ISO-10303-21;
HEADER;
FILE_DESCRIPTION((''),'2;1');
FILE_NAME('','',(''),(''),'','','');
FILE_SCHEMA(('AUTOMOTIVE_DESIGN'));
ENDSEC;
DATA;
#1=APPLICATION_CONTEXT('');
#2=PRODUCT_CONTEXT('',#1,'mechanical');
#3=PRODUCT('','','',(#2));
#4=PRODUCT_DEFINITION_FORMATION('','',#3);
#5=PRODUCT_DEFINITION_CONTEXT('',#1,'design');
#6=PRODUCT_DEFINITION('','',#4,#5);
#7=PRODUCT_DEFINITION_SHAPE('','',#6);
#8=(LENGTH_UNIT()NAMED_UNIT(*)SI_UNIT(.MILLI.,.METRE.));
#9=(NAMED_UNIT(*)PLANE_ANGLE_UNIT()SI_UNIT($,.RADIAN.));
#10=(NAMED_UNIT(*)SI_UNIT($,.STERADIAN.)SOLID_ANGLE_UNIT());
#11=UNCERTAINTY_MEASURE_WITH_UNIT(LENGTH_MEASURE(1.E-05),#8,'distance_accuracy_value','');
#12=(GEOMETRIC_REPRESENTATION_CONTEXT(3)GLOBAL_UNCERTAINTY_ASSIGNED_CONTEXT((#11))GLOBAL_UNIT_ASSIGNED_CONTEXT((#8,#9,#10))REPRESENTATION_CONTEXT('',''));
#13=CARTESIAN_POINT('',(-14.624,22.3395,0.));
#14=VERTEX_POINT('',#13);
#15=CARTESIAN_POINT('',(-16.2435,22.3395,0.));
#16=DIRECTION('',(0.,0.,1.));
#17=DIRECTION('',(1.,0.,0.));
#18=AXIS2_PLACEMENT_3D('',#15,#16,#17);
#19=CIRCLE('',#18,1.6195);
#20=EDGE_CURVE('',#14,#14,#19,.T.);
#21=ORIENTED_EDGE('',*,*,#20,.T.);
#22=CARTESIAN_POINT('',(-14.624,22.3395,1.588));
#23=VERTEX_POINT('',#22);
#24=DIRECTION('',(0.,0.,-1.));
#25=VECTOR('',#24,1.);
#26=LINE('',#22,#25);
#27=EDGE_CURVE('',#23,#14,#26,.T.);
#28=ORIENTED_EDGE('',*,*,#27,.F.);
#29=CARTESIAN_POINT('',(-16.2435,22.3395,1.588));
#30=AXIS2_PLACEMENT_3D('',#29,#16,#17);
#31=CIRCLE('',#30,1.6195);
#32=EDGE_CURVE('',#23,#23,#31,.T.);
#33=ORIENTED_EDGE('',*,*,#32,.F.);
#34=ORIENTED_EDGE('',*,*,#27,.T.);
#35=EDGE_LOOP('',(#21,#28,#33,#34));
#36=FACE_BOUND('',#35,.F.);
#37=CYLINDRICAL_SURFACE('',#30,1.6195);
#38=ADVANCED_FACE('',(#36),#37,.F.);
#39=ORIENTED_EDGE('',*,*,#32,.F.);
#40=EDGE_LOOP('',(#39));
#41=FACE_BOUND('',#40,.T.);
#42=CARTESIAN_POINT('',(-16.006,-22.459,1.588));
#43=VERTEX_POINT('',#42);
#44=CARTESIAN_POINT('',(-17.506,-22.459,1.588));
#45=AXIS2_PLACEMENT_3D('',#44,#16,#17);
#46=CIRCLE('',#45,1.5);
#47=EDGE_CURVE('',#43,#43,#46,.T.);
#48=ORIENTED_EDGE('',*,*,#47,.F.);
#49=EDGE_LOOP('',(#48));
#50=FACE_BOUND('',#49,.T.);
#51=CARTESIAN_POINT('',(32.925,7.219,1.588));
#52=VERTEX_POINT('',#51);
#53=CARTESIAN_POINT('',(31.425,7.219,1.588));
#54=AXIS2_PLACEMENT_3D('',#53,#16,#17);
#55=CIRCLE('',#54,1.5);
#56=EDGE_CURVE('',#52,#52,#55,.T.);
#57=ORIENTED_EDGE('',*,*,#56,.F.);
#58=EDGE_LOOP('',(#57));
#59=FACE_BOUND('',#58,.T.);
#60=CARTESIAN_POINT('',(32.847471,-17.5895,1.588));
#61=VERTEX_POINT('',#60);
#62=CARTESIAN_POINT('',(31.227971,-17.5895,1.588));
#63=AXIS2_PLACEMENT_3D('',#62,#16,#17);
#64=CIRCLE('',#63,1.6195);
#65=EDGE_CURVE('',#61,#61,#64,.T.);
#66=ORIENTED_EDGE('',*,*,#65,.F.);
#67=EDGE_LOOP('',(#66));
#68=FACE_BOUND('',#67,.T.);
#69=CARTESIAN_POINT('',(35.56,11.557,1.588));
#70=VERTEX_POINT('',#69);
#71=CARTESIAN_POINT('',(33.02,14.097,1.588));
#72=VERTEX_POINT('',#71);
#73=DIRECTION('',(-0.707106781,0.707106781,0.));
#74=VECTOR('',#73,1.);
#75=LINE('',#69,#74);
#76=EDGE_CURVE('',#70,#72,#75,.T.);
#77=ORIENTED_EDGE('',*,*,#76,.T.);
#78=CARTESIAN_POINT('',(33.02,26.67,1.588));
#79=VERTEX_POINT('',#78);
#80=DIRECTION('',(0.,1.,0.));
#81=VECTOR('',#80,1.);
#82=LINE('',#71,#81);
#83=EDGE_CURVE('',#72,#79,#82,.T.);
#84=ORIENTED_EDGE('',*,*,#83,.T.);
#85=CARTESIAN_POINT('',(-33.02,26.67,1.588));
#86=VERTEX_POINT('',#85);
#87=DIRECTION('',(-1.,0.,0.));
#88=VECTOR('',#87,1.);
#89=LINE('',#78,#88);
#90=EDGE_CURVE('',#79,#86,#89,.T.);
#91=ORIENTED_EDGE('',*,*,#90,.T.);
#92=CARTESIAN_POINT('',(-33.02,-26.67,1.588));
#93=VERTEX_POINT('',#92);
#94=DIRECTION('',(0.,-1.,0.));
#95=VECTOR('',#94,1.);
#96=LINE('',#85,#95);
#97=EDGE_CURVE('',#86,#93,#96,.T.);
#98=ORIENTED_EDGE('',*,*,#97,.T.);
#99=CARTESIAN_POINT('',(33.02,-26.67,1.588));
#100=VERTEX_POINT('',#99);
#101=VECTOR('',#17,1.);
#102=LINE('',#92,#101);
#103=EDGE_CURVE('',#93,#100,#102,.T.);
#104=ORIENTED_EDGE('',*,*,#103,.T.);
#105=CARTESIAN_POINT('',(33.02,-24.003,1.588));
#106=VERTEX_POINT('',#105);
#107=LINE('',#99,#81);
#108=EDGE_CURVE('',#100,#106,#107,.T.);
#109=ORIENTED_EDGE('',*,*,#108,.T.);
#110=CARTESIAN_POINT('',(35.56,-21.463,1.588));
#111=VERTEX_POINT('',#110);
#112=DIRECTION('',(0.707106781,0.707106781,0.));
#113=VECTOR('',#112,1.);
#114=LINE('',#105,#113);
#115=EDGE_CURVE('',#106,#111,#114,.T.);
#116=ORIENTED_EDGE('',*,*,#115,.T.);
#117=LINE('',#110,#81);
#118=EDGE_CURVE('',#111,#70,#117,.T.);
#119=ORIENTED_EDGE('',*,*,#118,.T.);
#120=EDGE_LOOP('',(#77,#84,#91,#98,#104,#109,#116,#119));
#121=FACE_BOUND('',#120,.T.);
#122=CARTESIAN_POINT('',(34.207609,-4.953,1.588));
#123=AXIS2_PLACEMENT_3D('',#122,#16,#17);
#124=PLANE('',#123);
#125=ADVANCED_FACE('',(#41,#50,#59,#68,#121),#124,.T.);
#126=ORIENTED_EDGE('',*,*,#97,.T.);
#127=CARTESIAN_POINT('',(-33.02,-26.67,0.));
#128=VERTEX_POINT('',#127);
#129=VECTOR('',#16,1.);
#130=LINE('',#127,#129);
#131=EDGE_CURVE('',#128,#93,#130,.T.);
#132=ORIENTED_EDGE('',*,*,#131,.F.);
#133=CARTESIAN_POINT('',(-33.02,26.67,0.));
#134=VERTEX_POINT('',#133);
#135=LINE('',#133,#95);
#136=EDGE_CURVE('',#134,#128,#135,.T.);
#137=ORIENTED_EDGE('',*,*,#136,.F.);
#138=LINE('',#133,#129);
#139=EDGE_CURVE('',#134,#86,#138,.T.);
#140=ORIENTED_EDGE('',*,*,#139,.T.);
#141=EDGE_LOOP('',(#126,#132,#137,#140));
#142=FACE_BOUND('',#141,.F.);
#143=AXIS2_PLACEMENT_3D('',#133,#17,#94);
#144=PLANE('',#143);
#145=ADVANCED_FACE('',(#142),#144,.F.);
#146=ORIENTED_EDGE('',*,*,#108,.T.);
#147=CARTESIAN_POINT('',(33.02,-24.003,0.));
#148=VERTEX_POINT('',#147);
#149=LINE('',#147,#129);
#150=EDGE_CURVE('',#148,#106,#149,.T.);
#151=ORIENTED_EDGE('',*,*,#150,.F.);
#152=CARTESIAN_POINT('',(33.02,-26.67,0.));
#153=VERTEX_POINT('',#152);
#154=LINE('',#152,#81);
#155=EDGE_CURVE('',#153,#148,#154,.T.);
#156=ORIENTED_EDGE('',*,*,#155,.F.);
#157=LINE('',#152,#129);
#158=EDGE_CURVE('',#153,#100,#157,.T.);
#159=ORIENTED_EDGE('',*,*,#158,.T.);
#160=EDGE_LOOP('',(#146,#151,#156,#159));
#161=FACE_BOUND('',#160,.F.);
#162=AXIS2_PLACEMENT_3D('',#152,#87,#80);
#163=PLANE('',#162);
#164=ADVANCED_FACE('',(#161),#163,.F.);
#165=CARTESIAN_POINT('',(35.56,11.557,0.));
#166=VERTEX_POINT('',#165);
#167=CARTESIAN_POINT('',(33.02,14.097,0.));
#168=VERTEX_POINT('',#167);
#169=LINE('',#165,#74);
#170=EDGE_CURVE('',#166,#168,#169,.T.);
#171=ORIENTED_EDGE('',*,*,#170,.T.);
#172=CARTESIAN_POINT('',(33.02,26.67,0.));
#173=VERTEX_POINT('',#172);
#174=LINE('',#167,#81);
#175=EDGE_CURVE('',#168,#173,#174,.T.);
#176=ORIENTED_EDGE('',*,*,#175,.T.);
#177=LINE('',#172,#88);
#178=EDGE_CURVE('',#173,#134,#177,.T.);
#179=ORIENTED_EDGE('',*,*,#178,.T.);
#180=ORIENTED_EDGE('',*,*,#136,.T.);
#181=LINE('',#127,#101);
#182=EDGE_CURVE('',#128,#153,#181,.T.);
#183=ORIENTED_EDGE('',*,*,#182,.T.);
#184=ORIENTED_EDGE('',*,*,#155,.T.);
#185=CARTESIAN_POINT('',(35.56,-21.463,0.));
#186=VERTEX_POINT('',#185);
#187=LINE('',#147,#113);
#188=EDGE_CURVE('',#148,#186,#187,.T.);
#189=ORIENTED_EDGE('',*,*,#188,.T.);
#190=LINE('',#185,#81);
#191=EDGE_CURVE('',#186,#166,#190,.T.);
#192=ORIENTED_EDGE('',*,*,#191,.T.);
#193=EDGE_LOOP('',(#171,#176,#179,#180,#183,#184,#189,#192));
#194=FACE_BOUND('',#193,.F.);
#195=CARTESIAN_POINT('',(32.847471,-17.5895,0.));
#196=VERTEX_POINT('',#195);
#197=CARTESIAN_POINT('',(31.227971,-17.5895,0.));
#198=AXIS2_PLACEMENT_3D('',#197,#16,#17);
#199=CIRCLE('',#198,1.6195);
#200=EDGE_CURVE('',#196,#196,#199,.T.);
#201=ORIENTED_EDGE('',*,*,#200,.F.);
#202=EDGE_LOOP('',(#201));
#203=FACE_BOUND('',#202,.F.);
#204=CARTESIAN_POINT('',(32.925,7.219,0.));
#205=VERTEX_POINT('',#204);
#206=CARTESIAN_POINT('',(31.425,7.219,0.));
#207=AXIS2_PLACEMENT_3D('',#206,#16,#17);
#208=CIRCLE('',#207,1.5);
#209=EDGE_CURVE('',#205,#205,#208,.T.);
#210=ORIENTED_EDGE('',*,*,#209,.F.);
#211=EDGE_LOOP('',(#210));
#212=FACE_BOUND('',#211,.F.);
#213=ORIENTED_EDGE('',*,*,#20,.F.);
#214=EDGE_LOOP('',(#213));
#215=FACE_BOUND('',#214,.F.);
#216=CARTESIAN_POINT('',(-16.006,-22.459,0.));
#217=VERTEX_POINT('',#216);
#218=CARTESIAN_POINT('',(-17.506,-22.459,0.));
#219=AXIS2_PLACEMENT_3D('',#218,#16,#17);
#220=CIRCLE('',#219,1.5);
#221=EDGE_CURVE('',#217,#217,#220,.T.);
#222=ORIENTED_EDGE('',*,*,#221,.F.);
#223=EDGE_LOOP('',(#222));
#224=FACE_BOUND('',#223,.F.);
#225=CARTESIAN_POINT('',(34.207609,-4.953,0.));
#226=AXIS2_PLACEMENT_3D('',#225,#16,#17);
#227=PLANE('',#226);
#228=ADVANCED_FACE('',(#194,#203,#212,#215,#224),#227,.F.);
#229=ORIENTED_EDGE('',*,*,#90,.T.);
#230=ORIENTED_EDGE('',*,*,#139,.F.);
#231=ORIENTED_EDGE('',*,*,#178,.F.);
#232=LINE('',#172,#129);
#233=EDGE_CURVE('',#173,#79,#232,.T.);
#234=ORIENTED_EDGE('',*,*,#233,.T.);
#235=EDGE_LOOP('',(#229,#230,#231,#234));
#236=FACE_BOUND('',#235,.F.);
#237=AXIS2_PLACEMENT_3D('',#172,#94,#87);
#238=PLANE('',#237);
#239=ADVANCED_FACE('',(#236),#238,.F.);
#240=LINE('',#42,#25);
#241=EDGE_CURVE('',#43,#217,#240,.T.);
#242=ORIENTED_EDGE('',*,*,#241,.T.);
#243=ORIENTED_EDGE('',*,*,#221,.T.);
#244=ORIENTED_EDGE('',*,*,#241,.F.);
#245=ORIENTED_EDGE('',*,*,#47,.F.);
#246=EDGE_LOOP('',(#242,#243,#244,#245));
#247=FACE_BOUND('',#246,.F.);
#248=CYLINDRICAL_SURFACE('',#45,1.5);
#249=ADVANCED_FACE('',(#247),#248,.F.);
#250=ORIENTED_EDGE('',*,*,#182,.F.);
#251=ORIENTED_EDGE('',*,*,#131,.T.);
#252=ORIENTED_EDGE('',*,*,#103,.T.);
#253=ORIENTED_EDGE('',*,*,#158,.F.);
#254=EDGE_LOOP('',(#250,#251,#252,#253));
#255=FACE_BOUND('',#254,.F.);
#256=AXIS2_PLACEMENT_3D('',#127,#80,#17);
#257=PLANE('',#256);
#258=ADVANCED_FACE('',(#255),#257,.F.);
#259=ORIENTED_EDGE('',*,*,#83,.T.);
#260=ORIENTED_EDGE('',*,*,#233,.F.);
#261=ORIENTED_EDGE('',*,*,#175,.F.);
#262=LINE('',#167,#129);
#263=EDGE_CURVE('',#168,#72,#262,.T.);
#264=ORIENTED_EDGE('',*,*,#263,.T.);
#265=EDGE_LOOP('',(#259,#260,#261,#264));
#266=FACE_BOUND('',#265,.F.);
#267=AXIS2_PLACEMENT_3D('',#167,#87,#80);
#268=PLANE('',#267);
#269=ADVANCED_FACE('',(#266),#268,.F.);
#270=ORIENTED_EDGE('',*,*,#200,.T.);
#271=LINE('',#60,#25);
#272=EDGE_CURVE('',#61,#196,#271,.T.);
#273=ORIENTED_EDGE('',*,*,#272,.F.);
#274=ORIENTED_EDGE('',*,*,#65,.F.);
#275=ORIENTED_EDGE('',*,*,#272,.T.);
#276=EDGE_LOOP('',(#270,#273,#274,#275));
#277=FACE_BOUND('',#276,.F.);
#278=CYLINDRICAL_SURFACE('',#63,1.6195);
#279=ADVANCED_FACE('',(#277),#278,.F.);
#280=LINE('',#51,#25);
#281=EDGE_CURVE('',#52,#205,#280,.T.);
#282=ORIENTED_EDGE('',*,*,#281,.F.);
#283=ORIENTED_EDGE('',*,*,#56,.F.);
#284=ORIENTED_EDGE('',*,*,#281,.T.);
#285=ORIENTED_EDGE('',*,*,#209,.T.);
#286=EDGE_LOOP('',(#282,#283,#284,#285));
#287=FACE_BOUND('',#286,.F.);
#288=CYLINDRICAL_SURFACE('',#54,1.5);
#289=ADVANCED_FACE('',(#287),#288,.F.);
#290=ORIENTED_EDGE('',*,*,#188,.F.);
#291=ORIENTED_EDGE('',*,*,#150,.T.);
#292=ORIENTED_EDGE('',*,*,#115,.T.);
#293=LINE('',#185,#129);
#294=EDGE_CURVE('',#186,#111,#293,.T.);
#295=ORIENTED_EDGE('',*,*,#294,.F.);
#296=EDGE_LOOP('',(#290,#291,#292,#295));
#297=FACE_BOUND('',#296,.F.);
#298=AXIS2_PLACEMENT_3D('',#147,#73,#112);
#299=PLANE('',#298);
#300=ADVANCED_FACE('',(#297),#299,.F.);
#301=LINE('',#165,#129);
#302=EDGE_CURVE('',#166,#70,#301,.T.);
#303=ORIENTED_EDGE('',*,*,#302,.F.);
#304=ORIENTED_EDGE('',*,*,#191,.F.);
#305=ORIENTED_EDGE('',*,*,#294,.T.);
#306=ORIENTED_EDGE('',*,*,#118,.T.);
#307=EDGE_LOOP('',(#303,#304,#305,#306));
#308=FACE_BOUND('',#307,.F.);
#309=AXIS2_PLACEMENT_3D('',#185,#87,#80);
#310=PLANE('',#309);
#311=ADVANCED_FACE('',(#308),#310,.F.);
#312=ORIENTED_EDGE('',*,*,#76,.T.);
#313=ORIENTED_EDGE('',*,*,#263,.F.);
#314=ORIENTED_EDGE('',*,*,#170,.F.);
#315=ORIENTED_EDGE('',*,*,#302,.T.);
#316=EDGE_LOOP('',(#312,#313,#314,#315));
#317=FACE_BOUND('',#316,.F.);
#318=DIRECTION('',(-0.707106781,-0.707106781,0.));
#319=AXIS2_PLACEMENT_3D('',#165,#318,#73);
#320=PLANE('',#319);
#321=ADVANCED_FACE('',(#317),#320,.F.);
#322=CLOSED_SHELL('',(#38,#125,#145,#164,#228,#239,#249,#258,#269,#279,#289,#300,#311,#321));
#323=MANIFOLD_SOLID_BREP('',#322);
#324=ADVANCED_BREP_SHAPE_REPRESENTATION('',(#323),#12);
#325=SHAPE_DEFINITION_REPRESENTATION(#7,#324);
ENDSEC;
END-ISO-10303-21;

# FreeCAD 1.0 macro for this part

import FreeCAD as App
import Part
import Sketcher

V = App.Vector
Q = App.Units.Quantity

doc = App.newDocument("Part")
body = doc.addObject("PartDesign::Body", "Body")

# Sketch on XY plane
sketch1 = body.newObject("Sketcher::SketchObject", "Sketch")
sketch1.AttachmentSupport = (doc.getObject("XY_Plane"), [""])
sketch1.MapMode = "FlatFace"
sketch1.addGeometry(Part.LineSegment(V(35.6, 11.6, 0), V(33, 14.1, 0)), False)
sketch1.addGeometry(Part.LineSegment(V(33, 14.1, 0), V(33, 26.7, 0)), False)
sketch1.addGeometry(Part.LineSegment(V(33, 26.7, 0), V(-33, 26.7, 0)), False)
sketch1.addGeometry(Part.LineSegment(V(-33, 26.7, 0), V(-33, -26.7, 0)), False)
sketch1.addGeometry(Part.LineSegment(V(-33, -26.7, 0), V(33, -26.7, 0)), False)
sketch1.addGeometry(Part.LineSegment(V(33, -26.7, 0), V(33, -24, 0)), False)
sketch1.addGeometry(Part.LineSegment(V(33, -24, 0), V(35.6, -21.5, 0)), False)
sketch1.addGeometry(Part.LineSegment(V(35.6, -21.5, 0), V(35.6, 11.6, 0)), False)
sketch1.addConstraint(Sketcher.Constraint("Coincident", 0, 2, 1, 1))
sketch1.addConstraint(Sketcher.Constraint("Coincident", 1, 2, 2, 1))
sketch1.addConstraint(Sketcher.Constraint("Coincident", 2, 2, 3, 1))
sketch1.addConstraint(Sketcher.Constraint("Coincident", 3, 2, 4, 1))
sketch1.addConstraint(Sketcher.Constraint("Coincident", 4, 2, 5, 1))
sketch1.addConstraint(Sketcher.Constraint("Coincident", 5, 2, 6, 1))
sketch1.addConstraint(Sketcher.Constraint("Coincident", 6, 2, 7, 1))
sketch1.addConstraint(Sketcher.Constraint("Coincident", 7, 2, 0, 1))
sketch1.addConstraint(Sketcher.Constraint("Vertical", 1))
sketch1.addConstraint(Sketcher.Constraint("Horizontal", 2))
sketch1.addConstraint(Sketcher.Constraint("Vertical", 3))
sketch1.addConstraint(Sketcher.Constraint("Horizontal", 4))
sketch1.addConstraint(Sketcher.Constraint("Vertical", 5))
sketch1.addConstraint(Sketcher.Constraint("Vertical", 7))
sketch1.addConstraint(Sketcher.Constraint("Symmetric", 1, 2, 3, 2, -1, 1))
sketch1.addConstraint(Sketcher.Constraint("Perpendicular", 0, 6))
sketch1.addConstraint(Sketcher.Constraint("Vertical", 1, 2, 4, 2))
sketch1.addConstraint(Sketcher.Constraint("Equal", 0, 6))
sketch1.addConstraint(Sketcher.Constraint("DistanceX", 2, 2, 2, 1, Q("2.6 in")))
sketch1.addConstraint(Sketcher.Constraint("DistanceY", 3, 2, 3, 1, Q("2.1 in")))
sketch1.addConstraint(Sketcher.Constraint("DistanceY", 7, 1, 7, 2, Q("1.3 in")))
sketch1.addConstraint(Sketcher.Constraint("DistanceX", -1, 1, 6, 2, Q("1.4 in")))
sketch1.addConstraint(Sketcher.Constraint("DistanceY", 1, 1, 1, 2, Q("0.495 in")))
pad1 = body.newObject("PartDesign::Pad", "Pad")
pad1.Profile = sketch1
pad1.Length = 1.588

# Sketch on XY plane
sketch2 = body.newObject("Sketcher::SketchObject", "Sketch001")
sketch2.AttachmentSupport = (doc.getObject("XY_Plane"), [""])
sketch2.MapMode = "FlatFace"
sketch2.AttachmentOffset = App.Placement(V(0, 0, 1.588), App.Rotation())
sketch2.addGeometry(Part.Circle(V(-16.2, 22.3, 0), V(0, 0, 1), 1.6), False)
sketch2.addGeometry(Part.Circle(V(-17.5, -22.5, 0), V(0, 0, 1), 1.5), False)
sketch2.addGeometry(Part.Circle(V(31.2, -17.6, 0), V(0, 0, 1), 1.6), False)
sketch2.addGeometry(Part.Circle(V(31.4, 7.2, 0), V(0, 0, 1), 1.5), False)
sketch2.addConstraint(Sketcher.Constraint("Equal", 0, 2))
sketch2.addConstraint(Sketcher.Constraint("Equal", 1, 3))
sketch2.addConstraint(Sketcher.Constraint("Diameter", 0, Q("3.239 mm")))
sketch2.addConstraint(Sketcher.Constraint("Diameter", 1, Q("3 mm")))
sketch2.addConstraint(Sketcher.Constraint("DistanceY", 2, 3, -1, 1, Q("0.6925 in")))
sketch2.addConstraint(Sketcher.Constraint("DistanceX", 0, 3, -1, 1, Q("16.2435 mm")))
sketch2.addConstraint(Sketcher.Constraint("DistanceY", -1, 1, 0, 3, Q("22.3395 mm")))
sketch2.addConstraint(Sketcher.Constraint("DistanceX", 1, 3, -1, 1, Q("17.506 mm")))
sketch2.addConstraint(Sketcher.Constraint("DistanceY", 1, 3, -1, 1, Q("22.459 mm")))
sketch2.addConstraint(Sketcher.Constraint("DistanceX", -1, 1, 3, 3, Q("31.425 mm")))
sketch2.addConstraint(Sketcher.Constraint("DistanceY", -1, 1, 3, 3, Q("7.219 mm")))
sketch2.addConstraint(Sketcher.Constraint("DistanceX", -1, 1, 2, 3, Q("31.227971 mm")))
pocket1 = body.newObject("PartDesign::Pocket", "Pocket")
pocket1.Profile = sketch2
pocket1.Length = 1.588

doc.recompute()
